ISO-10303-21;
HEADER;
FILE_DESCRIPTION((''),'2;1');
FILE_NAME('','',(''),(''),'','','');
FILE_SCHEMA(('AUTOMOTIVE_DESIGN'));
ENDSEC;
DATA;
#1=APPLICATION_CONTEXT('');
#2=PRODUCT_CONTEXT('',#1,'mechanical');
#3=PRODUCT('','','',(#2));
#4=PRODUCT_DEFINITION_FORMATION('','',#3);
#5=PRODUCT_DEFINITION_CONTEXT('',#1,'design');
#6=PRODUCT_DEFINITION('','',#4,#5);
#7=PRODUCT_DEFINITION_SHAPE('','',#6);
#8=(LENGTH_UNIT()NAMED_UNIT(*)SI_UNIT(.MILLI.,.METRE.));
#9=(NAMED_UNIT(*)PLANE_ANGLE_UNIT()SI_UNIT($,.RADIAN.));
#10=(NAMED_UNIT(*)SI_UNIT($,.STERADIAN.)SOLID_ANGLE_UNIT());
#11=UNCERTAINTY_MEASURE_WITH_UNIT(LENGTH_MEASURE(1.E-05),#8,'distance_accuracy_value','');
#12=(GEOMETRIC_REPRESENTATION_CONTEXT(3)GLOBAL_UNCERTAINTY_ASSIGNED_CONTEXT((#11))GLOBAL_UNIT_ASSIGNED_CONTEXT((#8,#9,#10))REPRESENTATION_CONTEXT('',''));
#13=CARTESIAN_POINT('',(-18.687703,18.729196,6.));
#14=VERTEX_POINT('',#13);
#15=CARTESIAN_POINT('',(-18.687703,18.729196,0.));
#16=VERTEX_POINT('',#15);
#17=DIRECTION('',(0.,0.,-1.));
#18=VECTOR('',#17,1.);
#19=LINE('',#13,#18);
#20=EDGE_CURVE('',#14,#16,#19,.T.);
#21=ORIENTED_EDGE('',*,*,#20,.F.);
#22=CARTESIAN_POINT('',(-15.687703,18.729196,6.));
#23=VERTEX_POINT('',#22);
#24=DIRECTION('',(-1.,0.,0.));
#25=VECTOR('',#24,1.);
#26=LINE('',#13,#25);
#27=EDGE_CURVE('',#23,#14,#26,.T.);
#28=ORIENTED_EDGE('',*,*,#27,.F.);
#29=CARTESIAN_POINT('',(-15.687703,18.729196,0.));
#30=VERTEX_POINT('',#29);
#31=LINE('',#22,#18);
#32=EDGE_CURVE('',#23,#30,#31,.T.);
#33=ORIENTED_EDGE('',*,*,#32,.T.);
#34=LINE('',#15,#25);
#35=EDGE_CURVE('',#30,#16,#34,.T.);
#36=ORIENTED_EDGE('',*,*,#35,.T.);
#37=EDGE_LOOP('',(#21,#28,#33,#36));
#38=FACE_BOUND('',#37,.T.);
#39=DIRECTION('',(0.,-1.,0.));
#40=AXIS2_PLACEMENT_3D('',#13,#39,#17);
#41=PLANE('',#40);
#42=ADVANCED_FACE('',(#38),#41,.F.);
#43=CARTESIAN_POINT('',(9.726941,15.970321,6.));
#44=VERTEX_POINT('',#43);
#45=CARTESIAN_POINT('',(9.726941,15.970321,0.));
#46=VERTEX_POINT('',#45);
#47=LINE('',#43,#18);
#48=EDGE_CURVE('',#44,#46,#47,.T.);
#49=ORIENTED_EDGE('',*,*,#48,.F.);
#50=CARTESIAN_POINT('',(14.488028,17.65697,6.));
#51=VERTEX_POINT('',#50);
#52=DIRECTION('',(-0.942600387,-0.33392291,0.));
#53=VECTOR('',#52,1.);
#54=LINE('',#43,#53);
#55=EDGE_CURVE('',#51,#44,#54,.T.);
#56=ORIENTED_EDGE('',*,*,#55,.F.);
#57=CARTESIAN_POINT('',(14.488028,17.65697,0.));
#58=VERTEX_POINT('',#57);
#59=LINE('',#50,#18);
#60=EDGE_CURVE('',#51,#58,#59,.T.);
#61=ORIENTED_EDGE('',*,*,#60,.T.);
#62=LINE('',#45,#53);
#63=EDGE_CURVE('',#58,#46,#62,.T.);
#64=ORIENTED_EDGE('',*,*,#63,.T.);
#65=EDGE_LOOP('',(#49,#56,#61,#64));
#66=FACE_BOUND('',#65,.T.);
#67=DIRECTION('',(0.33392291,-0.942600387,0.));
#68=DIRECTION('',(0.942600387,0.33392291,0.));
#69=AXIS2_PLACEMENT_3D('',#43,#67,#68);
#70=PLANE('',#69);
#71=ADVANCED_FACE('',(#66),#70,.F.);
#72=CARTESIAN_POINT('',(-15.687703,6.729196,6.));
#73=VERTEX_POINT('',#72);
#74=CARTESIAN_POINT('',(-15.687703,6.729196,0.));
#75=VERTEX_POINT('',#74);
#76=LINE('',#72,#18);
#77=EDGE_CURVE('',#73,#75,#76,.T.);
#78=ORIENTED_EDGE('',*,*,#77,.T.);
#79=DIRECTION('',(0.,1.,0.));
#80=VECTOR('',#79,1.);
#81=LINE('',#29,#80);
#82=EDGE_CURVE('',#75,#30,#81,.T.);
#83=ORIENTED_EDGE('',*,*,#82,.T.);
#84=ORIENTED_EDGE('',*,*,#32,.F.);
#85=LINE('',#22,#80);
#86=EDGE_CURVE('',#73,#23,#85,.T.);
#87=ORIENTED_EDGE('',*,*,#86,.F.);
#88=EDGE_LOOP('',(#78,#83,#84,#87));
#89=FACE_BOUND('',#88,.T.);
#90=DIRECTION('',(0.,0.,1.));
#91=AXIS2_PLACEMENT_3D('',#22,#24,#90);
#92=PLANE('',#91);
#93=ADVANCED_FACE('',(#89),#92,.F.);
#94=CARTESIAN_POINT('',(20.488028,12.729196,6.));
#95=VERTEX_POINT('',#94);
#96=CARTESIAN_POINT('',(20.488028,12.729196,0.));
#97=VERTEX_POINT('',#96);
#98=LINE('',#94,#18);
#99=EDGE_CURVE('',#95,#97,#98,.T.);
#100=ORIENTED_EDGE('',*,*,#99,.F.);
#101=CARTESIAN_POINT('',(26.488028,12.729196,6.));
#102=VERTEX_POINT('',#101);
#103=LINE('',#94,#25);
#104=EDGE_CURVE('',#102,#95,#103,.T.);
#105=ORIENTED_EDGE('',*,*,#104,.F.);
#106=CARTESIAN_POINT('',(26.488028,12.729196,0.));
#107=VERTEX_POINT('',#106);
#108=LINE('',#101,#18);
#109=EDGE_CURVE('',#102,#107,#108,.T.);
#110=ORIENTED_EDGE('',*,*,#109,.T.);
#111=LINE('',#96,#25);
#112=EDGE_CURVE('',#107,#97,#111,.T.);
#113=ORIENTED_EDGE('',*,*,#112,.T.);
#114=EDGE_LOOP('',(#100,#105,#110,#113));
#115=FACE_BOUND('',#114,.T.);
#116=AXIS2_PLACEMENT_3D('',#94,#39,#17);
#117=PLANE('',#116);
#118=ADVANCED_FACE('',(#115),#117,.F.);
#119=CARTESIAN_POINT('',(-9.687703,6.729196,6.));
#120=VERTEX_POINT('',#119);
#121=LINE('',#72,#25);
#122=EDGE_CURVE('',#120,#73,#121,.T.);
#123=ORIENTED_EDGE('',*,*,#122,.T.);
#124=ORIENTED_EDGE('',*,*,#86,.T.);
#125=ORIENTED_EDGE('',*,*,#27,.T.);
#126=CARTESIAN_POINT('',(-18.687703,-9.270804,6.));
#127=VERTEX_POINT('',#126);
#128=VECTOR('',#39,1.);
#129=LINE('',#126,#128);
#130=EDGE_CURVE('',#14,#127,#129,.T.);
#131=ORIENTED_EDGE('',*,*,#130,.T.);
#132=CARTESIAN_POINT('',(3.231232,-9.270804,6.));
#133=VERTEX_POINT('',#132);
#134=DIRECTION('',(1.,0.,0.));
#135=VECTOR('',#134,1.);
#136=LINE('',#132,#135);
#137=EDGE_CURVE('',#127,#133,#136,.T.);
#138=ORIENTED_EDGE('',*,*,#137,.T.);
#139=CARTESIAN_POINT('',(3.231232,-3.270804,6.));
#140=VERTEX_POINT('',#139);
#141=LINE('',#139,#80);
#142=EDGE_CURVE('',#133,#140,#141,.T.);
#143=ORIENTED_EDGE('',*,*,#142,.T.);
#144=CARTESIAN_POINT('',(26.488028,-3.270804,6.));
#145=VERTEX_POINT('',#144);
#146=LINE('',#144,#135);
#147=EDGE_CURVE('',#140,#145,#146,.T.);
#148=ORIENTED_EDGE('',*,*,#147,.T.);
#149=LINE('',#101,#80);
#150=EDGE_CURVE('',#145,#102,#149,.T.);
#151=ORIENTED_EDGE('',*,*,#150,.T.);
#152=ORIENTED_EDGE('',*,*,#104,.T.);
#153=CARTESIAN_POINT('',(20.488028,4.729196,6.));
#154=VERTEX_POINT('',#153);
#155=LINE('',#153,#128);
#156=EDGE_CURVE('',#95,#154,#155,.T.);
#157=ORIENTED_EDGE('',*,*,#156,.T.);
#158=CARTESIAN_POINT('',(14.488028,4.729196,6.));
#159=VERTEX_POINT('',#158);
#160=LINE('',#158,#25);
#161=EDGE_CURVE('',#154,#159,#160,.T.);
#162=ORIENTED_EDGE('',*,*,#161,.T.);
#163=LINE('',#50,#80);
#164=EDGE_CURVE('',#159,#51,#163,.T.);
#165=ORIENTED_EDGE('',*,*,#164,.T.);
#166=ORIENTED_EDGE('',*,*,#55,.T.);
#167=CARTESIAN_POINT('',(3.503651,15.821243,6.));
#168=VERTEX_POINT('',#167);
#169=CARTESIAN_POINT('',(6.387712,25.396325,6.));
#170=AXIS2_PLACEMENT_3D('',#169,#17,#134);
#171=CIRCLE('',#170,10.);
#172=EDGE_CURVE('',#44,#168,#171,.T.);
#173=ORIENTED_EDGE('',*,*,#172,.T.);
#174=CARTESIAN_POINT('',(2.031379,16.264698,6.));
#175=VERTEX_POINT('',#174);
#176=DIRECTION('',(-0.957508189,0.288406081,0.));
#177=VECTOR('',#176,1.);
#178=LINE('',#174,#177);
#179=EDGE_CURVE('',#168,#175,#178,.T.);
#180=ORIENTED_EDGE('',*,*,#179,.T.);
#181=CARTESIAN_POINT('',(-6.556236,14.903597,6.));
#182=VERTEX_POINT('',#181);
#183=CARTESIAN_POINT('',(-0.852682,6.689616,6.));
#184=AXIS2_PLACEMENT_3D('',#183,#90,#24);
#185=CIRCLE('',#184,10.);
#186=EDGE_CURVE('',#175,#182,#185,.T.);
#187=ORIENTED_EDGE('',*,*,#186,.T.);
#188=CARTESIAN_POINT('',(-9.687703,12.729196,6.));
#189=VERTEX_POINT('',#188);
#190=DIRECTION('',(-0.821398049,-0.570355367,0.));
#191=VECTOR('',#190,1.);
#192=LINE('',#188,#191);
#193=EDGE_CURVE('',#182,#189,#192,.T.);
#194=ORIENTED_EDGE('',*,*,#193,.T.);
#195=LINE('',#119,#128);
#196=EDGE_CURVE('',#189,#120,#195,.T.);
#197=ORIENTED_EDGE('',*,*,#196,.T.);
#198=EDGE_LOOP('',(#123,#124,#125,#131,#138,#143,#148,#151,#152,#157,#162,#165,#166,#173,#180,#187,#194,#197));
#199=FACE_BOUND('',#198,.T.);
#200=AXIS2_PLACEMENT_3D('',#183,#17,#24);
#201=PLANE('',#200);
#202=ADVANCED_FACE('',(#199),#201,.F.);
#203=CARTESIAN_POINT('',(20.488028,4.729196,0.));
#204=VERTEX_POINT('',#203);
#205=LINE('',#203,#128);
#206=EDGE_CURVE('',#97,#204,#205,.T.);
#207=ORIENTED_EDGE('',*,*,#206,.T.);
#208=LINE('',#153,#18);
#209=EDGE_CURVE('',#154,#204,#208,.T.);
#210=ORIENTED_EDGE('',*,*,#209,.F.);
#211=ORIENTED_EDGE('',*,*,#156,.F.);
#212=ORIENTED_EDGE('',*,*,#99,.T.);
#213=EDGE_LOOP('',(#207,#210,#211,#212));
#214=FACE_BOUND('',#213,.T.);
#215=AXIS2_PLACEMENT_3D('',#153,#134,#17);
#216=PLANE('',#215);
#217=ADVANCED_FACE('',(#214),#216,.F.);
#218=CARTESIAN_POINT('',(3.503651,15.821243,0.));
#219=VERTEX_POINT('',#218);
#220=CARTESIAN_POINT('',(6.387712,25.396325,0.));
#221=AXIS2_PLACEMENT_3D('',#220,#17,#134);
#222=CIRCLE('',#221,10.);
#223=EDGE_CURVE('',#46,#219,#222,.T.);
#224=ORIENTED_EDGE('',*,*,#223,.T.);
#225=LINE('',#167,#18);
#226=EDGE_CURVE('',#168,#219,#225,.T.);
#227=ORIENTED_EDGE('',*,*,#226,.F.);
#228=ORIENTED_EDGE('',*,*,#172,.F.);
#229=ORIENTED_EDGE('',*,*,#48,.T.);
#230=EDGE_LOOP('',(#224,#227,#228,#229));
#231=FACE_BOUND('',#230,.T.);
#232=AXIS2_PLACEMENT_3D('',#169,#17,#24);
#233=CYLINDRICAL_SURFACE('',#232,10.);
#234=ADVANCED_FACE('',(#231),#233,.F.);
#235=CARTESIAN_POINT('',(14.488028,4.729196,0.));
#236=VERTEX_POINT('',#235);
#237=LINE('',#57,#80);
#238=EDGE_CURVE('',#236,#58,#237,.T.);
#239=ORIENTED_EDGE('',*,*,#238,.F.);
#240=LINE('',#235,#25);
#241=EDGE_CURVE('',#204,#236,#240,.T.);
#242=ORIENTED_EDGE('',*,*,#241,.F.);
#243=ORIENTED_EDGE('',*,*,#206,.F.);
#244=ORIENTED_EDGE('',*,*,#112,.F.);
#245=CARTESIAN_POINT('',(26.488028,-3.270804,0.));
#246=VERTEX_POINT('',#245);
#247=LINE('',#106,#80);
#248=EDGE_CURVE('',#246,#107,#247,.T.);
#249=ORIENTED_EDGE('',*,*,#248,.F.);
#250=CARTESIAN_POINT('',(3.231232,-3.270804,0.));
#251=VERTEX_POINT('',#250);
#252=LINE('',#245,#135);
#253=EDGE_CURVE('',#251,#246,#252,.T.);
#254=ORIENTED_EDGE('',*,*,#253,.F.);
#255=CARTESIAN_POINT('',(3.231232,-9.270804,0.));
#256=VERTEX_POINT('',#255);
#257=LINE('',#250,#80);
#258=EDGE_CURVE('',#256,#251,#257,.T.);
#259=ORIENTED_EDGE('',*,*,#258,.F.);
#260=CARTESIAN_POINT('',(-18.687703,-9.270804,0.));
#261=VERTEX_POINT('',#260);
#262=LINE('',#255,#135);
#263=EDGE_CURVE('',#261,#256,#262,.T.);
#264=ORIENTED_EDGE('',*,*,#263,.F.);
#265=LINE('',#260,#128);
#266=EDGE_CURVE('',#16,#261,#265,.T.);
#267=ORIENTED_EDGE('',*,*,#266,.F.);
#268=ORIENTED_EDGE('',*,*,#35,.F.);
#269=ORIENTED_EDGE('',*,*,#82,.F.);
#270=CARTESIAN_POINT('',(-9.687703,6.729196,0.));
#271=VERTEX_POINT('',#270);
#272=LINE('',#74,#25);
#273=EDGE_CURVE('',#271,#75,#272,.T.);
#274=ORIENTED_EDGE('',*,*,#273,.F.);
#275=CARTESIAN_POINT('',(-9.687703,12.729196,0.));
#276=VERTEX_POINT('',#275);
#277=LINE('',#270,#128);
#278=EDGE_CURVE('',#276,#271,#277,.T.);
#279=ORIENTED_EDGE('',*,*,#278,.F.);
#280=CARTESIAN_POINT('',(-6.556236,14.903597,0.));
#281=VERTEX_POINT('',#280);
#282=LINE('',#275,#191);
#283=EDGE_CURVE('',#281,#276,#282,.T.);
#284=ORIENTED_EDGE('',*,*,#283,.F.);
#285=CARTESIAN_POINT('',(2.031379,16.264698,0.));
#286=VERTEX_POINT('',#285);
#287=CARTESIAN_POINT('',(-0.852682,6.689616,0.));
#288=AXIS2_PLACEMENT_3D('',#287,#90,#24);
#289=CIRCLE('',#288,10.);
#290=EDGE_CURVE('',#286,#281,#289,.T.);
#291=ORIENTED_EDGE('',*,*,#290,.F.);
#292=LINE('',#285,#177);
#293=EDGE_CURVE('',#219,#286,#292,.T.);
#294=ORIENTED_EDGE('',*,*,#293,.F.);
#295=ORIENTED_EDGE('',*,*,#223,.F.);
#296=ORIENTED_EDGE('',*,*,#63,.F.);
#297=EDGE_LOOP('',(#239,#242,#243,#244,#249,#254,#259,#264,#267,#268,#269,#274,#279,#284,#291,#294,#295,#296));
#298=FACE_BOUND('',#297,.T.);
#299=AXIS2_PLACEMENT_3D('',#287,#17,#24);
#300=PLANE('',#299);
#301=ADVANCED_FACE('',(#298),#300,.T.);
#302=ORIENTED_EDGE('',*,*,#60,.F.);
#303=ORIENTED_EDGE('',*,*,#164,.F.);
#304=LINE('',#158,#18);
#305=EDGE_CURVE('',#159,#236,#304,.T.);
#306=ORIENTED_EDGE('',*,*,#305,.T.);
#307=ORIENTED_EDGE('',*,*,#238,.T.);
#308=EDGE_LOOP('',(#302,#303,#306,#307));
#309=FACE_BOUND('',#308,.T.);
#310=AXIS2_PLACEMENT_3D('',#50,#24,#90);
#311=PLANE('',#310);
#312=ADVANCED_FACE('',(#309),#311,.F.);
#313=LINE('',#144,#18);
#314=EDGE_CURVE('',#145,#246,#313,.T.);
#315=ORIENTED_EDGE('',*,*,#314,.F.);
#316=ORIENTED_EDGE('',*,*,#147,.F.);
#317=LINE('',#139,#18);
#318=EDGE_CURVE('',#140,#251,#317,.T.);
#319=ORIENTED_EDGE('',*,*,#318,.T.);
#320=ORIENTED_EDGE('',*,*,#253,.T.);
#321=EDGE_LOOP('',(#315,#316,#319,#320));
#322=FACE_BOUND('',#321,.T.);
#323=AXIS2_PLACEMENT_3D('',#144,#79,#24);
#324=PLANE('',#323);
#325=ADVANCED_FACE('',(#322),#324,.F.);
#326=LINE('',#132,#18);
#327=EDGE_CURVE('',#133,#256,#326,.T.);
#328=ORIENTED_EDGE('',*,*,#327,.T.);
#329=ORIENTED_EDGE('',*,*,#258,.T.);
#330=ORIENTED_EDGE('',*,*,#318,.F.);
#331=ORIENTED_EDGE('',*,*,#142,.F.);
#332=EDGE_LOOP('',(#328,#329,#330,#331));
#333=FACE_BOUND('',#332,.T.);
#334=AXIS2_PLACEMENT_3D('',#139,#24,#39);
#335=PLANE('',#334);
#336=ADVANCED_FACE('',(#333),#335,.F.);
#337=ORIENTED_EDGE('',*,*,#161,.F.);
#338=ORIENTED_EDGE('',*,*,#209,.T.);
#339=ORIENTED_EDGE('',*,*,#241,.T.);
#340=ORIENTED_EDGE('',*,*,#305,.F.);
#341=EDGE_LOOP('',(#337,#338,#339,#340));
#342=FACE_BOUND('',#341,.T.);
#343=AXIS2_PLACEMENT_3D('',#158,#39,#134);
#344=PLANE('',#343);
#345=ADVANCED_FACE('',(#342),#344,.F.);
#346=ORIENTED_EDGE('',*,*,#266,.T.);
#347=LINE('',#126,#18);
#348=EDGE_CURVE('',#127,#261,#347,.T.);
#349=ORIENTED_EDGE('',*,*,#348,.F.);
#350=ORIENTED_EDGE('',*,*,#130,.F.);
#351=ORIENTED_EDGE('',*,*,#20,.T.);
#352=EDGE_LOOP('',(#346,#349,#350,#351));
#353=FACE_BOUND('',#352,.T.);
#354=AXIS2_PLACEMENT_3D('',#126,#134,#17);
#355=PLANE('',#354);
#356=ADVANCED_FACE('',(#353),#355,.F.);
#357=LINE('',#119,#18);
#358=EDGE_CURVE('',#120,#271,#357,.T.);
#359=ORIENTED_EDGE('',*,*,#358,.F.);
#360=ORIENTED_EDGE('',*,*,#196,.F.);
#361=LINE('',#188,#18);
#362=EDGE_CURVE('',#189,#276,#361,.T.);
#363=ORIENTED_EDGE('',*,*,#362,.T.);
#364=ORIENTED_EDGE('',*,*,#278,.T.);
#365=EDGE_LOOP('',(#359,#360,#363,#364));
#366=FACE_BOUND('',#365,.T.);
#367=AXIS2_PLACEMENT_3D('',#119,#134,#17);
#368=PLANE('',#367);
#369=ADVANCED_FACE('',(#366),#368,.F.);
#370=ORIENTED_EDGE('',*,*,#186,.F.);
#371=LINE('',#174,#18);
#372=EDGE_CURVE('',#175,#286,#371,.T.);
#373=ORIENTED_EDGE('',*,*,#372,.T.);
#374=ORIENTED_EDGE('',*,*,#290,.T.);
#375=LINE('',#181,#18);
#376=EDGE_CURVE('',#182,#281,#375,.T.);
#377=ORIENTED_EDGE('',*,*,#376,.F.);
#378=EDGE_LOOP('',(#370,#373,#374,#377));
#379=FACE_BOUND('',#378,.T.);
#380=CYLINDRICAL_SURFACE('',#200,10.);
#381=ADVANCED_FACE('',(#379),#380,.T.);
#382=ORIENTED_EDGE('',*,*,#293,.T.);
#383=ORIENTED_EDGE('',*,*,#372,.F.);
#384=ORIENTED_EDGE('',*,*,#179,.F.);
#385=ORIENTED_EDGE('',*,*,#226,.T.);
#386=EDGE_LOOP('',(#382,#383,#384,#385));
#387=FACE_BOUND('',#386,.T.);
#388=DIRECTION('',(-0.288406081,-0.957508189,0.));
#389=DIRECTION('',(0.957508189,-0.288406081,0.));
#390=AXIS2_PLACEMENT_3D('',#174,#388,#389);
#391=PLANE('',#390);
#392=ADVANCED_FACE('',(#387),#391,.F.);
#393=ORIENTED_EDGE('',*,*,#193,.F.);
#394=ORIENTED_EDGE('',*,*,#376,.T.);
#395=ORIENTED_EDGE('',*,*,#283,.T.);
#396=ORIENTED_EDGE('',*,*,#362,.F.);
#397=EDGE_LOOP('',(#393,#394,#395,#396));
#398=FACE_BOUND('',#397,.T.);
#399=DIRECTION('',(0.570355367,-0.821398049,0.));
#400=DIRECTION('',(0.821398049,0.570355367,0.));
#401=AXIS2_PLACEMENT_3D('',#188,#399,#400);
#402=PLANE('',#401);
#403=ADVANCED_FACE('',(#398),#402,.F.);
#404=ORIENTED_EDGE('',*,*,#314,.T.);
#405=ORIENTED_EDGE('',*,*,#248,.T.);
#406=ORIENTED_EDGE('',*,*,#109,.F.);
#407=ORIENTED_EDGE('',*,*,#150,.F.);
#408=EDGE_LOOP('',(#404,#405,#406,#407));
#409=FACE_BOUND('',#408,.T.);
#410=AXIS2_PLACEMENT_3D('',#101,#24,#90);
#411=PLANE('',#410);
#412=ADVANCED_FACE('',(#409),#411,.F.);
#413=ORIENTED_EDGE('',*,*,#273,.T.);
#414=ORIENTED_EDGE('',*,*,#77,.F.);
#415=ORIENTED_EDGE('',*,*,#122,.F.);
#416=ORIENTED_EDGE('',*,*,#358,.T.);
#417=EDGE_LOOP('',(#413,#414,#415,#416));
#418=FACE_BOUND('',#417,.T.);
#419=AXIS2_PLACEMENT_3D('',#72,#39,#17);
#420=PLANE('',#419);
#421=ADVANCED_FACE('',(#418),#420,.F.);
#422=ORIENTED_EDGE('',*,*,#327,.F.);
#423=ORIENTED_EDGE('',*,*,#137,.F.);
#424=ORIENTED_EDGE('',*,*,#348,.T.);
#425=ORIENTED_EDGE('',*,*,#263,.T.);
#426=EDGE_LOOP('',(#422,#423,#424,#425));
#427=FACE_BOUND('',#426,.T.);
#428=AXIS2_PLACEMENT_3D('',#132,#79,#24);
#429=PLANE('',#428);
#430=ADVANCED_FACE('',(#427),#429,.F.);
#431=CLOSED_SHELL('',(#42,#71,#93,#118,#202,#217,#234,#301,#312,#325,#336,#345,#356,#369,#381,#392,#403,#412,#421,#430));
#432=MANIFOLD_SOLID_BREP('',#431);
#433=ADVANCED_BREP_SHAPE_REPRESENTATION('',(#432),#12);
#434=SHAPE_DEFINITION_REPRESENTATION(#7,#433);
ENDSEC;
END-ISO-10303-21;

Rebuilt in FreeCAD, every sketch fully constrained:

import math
import FreeCAD as App
import Part
import Sketcher
Q = App.Units.Quantity

doc = App.newDocument("Part")
body = doc.addObject("PartDesign::Body", "Body")

sketch1 = doc.addObject("Sketcher::SketchObject", "Sketch")
body.addObject(sketch1)
sketch1.AttachmentSupport = (doc.XY_Plane, [""])
sketch1.MapMode = "FlatFace"
sketch1.addGeometry([
    Part.LineSegment(App.Vector(-15.7, 18.7, 0), App.Vector(-18.7, 18.7, 0)),
    Part.LineSegment(App.Vector(-18.7, 18.7, 0), App.Vector(-18.7, -9.3, 0)),
    Part.LineSegment(App.Vector(-18.7, -9.3, 0), App.Vector(3.2, -9.3, 0)),
    Part.LineSegment(App.Vector(3.2, -9.3, 0), App.Vector(3.2, -3.3, 0)),
    Part.LineSegment(App.Vector(3.2, -3.3, 0), App.Vector(26.5, -3.3, 0)),
    Part.LineSegment(App.Vector(26.5, -3.3, 0), App.Vector(26.5, 12.7, 0)),
    Part.LineSegment(App.Vector(26.5, 12.7, 0), App.Vector(20.5, 12.7, 0)),
    Part.LineSegment(App.Vector(20.5, 12.7, 0), App.Vector(20.5, 4.7, 0)),
    Part.LineSegment(App.Vector(20.5, 4.7, 0), App.Vector(14.5, 4.7, 0)),
    Part.LineSegment(App.Vector(14.5, 4.7, 0), App.Vector(14.5, 17.7, 0)),
    Part.LineSegment(App.Vector(14.5, 17.7, 0), App.Vector(9.7, 16, 0)),
    Part.ArcOfCircle(Part.Circle(App.Vector(6.4, 25.4, 0), App.Vector(0, 0, 1), 10), math.radians(-107), math.radians(-70)),
    Part.LineSegment(App.Vector(3.5, 15.8, 0), App.Vector(2, 16.3, 0)),
    Part.ArcOfCircle(Part.Circle(App.Vector(-0.9, 6.7, 0), App.Vector(0, 0, 1), 10), math.radians(73), math.radians(125)),
    Part.LineSegment(App.Vector(-6.6, 14.9, 0), App.Vector(-9.7, 12.7, 0)),
    Part.LineSegment(App.Vector(-9.7, 12.7, 0), App.Vector(-9.7, 6.7, 0)),
    Part.LineSegment(App.Vector(-9.7, 6.7, 0), App.Vector(-15.7, 6.7, 0)),
    Part.LineSegment(App.Vector(-15.7, 6.7, 0), App.Vector(-15.7, 18.7, 0)),
], False)
sketch1.addConstraint([
    Sketcher.Constraint("Coincident", 0, 2, 1, 1),
    Sketcher.Constraint("Coincident", 1, 2, 2, 1),
    Sketcher.Constraint("Coincident", 2, 2, 3, 1),
    Sketcher.Constraint("Coincident", 3, 2, 4, 1),
    Sketcher.Constraint("Coincident", 4, 2, 5, 1),
    Sketcher.Constraint("Coincident", 5, 2, 6, 1),
    Sketcher.Constraint("Coincident", 6, 2, 7, 1),
    Sketcher.Constraint("Coincident", 7, 2, 8, 1),
    Sketcher.Constraint("Coincident", 8, 2, 9, 1),
    Sketcher.Constraint("Coincident", 9, 2, 10, 1),
    Sketcher.Constraint("Tangent", 10, 2, 11, 2),
    Sketcher.Constraint("Tangent", 11, 1, 12, 1),
    Sketcher.Constraint("Tangent", 12, 2, 13, 1),
    Sketcher.Constraint("Tangent", 13, 2, 14, 1),
    Sketcher.Constraint("Coincident", 14, 2, 15, 1),
    Sketcher.Constraint("Coincident", 15, 2, 16, 1),
    Sketcher.Constraint("Coincident", 16, 2, 17, 1),
    Sketcher.Constraint("Coincident", 17, 2, 0, 1),
    Sketcher.Constraint("Horizontal", 0),
    Sketcher.Constraint("Vertical", 1),
    Sketcher.Constraint("Horizontal", 2),
    Sketcher.Constraint("Vertical", 3),
    Sketcher.Constraint("Horizontal", 4),
    Sketcher.Constraint("Vertical", 5),
    Sketcher.Constraint("Horizontal", 6),
    Sketcher.Constraint("Vertical", 7),
    Sketcher.Constraint("Horizontal", 8),
    Sketcher.Constraint("Vertical", 9),
    Sketcher.Constraint("Vertical", 15),
    Sketcher.Constraint("Horizontal", 16),
    Sketcher.Constraint("Vertical", 17),
    Sketcher.Constraint("Equal", 11, 13),
    Sketcher.Constraint("Horizontal", 6, 2, 14, 2),
    Sketcher.Constraint("Equal", 6, 8),
    Sketcher.Constraint("Equal", 8, 16),
    Sketcher.Constraint("Equal", 16, 3),
    Sketcher.Constraint("Equal", 3, 15),
    Sketcher.Constraint("Radius", 11, Q("10 mm")),
    Sketcher.Constraint("DistanceX", 0, 2, 0, 1, Q("3 mm")),
    Sketcher.Constraint("DistanceX", 6, 2, 6, 1, Q("6 mm")),
    Sketcher.Constraint("DistanceY", 1, 2, 1, 1, Q("28 mm")),
    Sketcher.Constraint("DistanceY", 5, 1, 5, 2, Q("16 mm")),
    Sketcher.Constraint("DistanceY", 7, 2, 7, 1, Q("8 mm")),
    Sketcher.Constraint("DistanceY", -1, 1, 12, 2, Q("16.264698 mm")),
    Sketcher.Constraint("DistanceY", 13, 2, 12, 2, Q("1.361101 mm")),
    Sketcher.Constraint("DistanceY", 13, 2, 0, 2, Q("3.825599 mm")),
    Sketcher.Constraint("Distance", 12, Q("1.537608 mm")),
    Sketcher.Constraint("Distance", 14, Q("3.812362 mm")),
    Sketcher.Constraint("DistanceX", 2, 1, 2, 2, Q("21.918934 mm")),
    Sketcher.Constraint("DistanceX", 4, 1, 4, 2, Q("23.256796 mm")),
    Sketcher.Constraint("DistanceY", 9, 1, 9, 2, Q("12.927774 mm")),
    Sketcher.Constraint("DistanceX", -1, 1, 11, 3, Q("6.387712 mm")),
])
pad1 = doc.addObject("PartDesign::Pad", "Pad")
body.addObject(pad1)
pad1.Profile = sketch1
pad1.Length = 6

doc.recompute()
